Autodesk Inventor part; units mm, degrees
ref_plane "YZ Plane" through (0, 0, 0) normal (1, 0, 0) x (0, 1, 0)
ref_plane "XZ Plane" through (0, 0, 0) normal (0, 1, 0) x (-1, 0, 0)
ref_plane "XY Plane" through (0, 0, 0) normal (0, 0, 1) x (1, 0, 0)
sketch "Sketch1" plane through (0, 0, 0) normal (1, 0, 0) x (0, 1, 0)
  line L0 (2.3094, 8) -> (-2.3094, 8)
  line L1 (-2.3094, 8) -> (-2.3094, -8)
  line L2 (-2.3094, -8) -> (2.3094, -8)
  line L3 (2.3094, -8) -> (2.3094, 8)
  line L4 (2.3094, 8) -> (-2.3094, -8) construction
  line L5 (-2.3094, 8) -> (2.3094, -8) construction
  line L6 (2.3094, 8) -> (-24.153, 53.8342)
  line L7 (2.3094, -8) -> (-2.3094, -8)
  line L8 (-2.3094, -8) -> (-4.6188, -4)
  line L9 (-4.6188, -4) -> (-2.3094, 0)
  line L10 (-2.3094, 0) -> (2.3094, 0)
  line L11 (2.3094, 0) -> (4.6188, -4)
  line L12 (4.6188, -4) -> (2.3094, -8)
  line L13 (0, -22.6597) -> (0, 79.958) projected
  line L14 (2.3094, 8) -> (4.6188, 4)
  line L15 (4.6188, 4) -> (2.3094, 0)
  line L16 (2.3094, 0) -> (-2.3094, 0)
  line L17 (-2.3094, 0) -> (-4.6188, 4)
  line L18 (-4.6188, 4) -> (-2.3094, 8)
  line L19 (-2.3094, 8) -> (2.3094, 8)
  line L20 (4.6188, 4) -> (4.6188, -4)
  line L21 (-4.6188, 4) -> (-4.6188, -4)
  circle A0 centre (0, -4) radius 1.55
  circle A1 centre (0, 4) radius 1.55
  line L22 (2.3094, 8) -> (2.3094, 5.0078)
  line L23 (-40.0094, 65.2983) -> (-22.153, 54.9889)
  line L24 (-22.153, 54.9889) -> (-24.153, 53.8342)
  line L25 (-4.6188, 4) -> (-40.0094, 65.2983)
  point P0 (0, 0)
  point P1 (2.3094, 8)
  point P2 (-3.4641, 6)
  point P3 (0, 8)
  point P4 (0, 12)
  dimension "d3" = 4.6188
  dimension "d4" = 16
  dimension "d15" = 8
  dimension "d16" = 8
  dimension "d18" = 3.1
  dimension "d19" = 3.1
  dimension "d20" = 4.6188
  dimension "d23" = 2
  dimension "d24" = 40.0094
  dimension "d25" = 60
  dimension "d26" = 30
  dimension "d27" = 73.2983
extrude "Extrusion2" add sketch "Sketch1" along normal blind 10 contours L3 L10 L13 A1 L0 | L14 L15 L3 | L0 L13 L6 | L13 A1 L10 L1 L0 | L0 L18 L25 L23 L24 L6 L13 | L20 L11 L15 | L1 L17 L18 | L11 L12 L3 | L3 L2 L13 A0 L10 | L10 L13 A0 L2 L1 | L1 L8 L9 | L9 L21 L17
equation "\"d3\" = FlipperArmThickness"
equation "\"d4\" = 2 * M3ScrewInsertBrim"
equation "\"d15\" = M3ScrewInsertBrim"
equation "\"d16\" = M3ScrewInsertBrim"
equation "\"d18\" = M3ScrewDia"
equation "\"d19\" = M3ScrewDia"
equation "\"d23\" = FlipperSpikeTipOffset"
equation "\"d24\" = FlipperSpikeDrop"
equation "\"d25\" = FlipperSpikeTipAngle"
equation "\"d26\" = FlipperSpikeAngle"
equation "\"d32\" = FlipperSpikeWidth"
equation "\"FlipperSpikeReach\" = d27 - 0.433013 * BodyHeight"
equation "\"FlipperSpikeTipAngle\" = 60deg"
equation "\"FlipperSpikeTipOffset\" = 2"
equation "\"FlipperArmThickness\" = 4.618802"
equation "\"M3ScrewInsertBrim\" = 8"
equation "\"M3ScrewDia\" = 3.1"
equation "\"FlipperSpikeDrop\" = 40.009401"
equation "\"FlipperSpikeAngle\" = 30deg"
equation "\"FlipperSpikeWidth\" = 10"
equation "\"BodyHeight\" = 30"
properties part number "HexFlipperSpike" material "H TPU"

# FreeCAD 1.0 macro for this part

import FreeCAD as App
import Part
import Sketcher

V = App.Vector
Q = App.Units.Quantity

doc = App.newDocument("Part")
body = doc.addObject("PartDesign::Body", "Body")

# Sketch on YZ plane
sketch1 = doc.addObject("Sketcher::SketchObject", "Sketch")
body.addObject(sketch1)
sketch1.AttachmentSupport = (doc.YZ_Plane, [""])
sketch1.MapMode = "FlatFace"
sketch1.addGeometry([
    Part.LineSegment(V(4.6, 4, 0), V(2.3, 8, 0)),  # 0
    Part.LineSegment(V(2.3, 8, 0), V(-24.2, 53.8, 0)),  # 1
    Part.LineSegment(V(-24.2, 53.8, 0), V(-22.2, 55, 0)),  # 2
    Part.LineSegment(V(-22.2, 55, 0), V(-40, 65.3, 0)),  # 3
    Part.LineSegment(V(-40, 65.3, 0), V(-4.6, 4, 0)),  # 4
    Part.LineSegment(V(-4.6, 4, 0), V(-4.6, -4, 0)),  # 5
    Part.LineSegment(V(-4.6, -4, 0), V(-2.3, -8, 0)),  # 6
    Part.LineSegment(V(-2.3, -8, 0), V(2.3, -8, 0)),  # 7
    Part.LineSegment(V(2.3, -8, 0), V(4.6, -4, 0)),  # 8
    Part.LineSegment(V(4.6, -4, 0), V(4.6, 4, 0)),  # 9
    Part.Circle(V(0, 4, 0), V(0, 0, 1), 1.6),  # 10
    Part.Circle(V(0, -4, 0), V(0, 0, 1), 1.6),  # 11
], False)
sketch1.addConstraint([
    Sketcher.Constraint("Coincident", 0, 2, 1, 1),
    Sketcher.Constraint("Coincident", 1, 2, 2, 1),
    Sketcher.Constraint("Coincident", 2, 2, 3, 1),
    Sketcher.Constraint("Coincident", 3, 2, 4, 1),
    Sketcher.Constraint("Coincident", 4, 2, 5, 1),
    Sketcher.Constraint("Coincident", 5, 2, 6, 1),
    Sketcher.Constraint("Coincident", 6, 2, 7, 1),
    Sketcher.Constraint("Coincident", 7, 2, 8, 1),
    Sketcher.Constraint("Coincident", 8, 2, 9, 1),
    Sketcher.Constraint("Coincident", 9, 2, 0, 1),
    Sketcher.Constraint("Vertical", 5),
    Sketcher.Constraint("Horizontal", 7),
    Sketcher.Constraint("Vertical", 9),
    Sketcher.Constraint("Equal", 10, 11),
    Sketcher.Constraint("Symmetric", 10, 3, 11, 3, -1, 1),
    Sketcher.Constraint("Symmetric", 0, 2, 6, 2, -1, 1),
    Sketcher.Constraint("Symmetric", 4, 2, 8, 2, -1, 1),
    Sketcher.Constraint("PointOnObject", 10, 3, -2),
    Sketcher.Constraint("Parallel", 0, 1),
    Sketcher.Constraint("Perpendicular", 1, 2),
    Sketcher.Constraint("Perpendicular", 2, 4),
    Sketcher.Constraint("Parallel", 4, 6),
    Sketcher.Constraint("Perpendicular", 3, 8),
    Sketcher.Constraint("Horizontal", 10, 3, 4, 2),
    Sketcher.Constraint("Horizontal", 11, 3, 5, 2),
    Sketcher.Constraint("Vertical", 0, 2, 7, 2),
    Sketcher.Constraint("Diameter", 10, Q("3.1 mm")),
    Sketcher.Constraint("DistanceY", 5, 2, 5, 1, Q("8 mm")),
    Sketcher.Constraint("Angle", 2, Q("30 deg")),
    Sketcher.Constraint("DistanceY", -1, 1, 0, 2, Q("8 mm")),
    Sketcher.Constraint("DistanceX", 1, 2, 2, 2, Q("2 mm")),
    Sketcher.Constraint("DistanceX", 7, 1, 7, 2, Q("4.6188 mm")),
    Sketcher.Constraint("DistanceX", 3, 2, -1, 1, Q("40.0094 mm")),
])
pad1 = doc.addObject("PartDesign::Pad", "Pad")
body.addObject(pad1)
pad1.Profile = sketch1
pad1.Length = 10

doc.recompute()
